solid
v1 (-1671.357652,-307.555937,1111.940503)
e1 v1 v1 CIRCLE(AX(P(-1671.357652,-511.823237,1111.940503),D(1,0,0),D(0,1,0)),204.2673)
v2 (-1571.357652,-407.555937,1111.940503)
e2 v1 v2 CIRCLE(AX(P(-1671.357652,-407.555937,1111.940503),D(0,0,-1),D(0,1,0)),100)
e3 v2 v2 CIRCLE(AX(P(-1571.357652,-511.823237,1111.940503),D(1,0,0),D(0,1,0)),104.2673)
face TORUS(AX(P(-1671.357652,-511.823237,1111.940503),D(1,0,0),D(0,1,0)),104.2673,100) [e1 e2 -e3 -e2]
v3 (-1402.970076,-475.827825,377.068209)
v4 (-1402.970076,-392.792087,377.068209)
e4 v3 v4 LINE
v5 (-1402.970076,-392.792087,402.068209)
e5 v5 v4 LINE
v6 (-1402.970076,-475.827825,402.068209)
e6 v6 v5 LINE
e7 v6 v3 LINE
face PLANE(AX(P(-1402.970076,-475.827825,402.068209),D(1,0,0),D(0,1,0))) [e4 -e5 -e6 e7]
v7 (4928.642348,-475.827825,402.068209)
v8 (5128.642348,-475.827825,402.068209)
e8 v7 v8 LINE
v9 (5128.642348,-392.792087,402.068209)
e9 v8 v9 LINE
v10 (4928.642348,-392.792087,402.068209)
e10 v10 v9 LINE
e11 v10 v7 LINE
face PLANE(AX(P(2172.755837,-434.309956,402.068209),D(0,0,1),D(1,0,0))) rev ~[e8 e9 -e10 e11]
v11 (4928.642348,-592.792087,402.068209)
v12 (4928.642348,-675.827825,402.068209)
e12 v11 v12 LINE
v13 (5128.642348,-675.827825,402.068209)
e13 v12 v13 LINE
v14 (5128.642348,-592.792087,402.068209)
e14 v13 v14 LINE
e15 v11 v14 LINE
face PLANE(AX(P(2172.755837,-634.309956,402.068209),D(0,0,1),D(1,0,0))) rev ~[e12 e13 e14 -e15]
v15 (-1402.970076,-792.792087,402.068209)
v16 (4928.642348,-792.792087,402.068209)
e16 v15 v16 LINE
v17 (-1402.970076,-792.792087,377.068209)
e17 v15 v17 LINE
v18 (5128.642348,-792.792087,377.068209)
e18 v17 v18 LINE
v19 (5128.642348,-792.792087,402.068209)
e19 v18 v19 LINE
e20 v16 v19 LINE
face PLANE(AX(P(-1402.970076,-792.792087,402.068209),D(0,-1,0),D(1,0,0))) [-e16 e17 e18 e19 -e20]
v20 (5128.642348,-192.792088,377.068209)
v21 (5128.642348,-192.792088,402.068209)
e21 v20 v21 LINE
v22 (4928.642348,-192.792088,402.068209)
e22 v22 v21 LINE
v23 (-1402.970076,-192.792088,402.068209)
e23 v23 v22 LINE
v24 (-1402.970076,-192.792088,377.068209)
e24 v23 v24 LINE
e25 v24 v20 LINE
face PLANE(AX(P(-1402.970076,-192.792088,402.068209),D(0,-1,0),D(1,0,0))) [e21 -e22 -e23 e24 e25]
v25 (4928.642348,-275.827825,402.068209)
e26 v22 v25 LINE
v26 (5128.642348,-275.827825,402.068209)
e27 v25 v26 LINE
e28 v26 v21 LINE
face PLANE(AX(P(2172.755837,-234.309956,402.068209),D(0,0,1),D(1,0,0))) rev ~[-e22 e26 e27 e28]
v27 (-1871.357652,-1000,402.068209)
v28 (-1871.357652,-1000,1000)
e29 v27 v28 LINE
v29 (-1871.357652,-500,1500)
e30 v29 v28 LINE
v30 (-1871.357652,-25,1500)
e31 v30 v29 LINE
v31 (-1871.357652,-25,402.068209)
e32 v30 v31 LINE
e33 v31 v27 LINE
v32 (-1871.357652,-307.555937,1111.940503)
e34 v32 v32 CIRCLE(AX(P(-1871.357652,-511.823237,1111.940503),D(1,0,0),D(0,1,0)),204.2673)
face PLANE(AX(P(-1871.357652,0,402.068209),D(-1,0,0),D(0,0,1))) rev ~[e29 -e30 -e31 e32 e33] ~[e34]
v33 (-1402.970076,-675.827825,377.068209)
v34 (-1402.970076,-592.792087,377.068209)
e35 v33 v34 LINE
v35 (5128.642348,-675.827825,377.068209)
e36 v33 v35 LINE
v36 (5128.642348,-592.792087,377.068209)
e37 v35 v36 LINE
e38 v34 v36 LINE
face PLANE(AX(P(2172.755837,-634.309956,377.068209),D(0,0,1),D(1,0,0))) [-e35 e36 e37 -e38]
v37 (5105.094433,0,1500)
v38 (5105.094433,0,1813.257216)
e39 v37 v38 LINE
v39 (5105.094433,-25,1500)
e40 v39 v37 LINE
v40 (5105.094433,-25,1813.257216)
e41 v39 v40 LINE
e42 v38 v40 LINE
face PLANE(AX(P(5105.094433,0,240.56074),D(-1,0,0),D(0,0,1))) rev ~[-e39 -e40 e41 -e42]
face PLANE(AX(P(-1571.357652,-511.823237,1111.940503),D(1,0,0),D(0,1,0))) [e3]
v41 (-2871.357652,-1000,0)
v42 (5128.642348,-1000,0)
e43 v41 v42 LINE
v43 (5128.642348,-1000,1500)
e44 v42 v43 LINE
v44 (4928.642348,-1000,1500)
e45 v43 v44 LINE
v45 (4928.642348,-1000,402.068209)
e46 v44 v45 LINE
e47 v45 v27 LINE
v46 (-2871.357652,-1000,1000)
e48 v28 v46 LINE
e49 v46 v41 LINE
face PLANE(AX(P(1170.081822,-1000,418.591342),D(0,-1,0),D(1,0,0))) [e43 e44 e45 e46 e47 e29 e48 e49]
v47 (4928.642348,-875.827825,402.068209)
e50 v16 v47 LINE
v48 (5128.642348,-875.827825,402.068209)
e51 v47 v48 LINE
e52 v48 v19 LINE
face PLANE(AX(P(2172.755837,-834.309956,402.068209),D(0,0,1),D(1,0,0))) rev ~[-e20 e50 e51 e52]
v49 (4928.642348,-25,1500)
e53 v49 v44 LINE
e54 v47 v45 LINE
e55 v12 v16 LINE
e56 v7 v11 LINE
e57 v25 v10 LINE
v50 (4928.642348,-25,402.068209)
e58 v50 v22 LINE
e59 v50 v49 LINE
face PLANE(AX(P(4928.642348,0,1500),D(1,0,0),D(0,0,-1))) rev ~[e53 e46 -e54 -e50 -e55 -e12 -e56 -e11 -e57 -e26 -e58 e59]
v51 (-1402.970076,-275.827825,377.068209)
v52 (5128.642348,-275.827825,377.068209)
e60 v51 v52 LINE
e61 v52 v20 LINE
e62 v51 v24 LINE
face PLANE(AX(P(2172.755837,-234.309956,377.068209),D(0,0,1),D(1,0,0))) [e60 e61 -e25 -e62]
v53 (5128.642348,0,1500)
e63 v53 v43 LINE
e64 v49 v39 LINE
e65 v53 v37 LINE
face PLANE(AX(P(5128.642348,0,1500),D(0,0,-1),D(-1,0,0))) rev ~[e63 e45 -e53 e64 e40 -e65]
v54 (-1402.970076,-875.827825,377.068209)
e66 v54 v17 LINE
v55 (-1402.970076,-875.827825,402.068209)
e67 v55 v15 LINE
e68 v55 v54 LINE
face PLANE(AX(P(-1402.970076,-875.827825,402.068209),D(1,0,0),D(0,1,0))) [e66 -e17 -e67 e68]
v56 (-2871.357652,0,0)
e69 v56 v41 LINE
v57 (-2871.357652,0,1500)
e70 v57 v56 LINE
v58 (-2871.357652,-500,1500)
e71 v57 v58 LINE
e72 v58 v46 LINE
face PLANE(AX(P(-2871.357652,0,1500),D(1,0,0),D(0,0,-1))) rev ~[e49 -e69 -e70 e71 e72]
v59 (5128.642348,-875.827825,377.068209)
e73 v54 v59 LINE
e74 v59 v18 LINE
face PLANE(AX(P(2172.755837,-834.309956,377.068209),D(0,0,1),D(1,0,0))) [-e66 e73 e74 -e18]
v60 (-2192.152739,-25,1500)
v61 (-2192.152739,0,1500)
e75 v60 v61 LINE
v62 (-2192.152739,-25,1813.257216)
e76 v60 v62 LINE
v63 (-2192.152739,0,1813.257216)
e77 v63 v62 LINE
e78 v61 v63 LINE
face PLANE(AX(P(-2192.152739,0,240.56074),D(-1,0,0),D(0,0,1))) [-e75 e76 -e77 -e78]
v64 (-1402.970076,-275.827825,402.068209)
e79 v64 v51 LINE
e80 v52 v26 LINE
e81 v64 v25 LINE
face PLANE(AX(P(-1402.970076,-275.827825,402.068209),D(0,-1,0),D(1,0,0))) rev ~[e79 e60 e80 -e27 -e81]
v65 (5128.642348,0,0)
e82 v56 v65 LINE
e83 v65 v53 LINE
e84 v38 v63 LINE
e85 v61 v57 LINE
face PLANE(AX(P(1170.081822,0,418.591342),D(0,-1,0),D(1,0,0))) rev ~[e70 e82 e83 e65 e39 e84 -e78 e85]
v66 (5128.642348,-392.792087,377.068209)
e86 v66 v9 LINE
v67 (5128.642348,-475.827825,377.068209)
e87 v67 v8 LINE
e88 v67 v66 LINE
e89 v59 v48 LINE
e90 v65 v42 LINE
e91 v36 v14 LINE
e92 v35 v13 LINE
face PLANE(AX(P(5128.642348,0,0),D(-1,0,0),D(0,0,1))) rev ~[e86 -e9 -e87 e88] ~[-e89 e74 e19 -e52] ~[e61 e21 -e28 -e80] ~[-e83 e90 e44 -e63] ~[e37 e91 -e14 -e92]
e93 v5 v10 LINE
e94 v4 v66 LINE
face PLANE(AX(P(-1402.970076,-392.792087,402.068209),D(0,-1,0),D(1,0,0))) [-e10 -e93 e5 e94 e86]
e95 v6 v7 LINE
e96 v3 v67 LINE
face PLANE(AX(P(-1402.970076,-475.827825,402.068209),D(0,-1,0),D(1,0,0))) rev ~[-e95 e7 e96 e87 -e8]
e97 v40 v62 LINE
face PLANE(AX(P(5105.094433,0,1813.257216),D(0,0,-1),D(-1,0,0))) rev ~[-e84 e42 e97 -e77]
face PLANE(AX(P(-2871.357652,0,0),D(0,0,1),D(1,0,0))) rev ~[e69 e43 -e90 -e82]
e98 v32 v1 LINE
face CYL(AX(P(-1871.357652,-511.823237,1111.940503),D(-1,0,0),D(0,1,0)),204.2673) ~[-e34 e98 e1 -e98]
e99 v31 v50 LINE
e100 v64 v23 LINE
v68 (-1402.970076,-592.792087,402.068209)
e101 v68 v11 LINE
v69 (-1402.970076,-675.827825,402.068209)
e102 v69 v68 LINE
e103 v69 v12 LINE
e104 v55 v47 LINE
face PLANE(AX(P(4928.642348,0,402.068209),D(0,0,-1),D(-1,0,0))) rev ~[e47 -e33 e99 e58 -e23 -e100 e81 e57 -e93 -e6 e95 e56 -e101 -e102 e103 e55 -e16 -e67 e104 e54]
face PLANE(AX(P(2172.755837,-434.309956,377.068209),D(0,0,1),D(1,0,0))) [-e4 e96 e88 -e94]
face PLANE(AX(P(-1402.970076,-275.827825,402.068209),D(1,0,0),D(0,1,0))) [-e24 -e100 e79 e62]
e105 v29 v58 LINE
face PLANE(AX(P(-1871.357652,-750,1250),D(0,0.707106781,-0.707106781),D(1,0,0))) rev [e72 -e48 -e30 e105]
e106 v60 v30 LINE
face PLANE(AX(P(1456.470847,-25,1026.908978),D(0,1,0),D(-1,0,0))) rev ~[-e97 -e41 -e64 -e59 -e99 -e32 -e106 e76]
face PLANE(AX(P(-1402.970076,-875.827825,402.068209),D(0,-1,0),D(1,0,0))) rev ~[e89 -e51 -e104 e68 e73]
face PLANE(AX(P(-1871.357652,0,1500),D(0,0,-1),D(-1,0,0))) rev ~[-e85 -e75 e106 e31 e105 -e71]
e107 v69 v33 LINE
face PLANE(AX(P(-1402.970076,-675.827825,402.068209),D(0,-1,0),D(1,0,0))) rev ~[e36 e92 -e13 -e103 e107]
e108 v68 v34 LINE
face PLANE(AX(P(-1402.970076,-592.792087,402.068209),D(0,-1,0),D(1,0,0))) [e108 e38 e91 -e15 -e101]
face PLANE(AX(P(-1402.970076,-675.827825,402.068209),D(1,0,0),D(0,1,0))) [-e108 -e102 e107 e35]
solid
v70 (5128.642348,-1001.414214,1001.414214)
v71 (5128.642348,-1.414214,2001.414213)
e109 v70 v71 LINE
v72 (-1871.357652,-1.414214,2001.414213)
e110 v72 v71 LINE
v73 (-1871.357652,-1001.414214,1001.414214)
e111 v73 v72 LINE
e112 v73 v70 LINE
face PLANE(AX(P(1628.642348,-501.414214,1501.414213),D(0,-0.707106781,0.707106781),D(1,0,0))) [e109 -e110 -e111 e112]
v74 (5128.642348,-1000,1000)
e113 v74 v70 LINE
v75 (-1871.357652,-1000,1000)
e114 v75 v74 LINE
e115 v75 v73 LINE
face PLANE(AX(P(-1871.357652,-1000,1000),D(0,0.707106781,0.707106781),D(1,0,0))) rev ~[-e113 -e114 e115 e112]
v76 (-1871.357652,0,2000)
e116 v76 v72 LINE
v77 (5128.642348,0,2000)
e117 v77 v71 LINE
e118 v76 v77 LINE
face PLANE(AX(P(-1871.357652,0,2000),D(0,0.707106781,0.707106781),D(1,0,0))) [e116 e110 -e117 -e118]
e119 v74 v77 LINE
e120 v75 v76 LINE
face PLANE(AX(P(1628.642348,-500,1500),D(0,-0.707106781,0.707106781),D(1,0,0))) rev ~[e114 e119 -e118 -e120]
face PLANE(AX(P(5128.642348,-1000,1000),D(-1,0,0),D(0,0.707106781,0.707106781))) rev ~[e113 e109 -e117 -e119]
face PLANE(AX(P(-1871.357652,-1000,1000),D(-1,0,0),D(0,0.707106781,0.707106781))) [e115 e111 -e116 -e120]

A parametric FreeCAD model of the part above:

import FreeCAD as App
import Part
import Sketcher

V = App.Vector


def edges_at(feature, points):
    """Names of the edges that pass closest to the given points."""
    edges = feature.Shape.Edges
    near = lambda p: min(range(len(edges)), key=lambda i: edges[i].distToShape(Part.Vertex(*p))[0])
    return sorted({f"Edge{near(p) + 1}" for p in points})


def add_polygon(sketch, points):
    """Adds a closed chain of lines whose ends are joined by coincident constraints."""
    first, n = sketch.GeometryCount, len(points)
    for a, b in zip(points, points[1:] + points[:1]):
        sketch.addGeometry(Part.LineSegment(App.Vector(*a, 0), App.Vector(*b, 0)), False)
    for i in range(n):
        sketch.addConstraint(Sketcher.Constraint("Coincident", first + i, 2, first + (i + 1) % n, 1))

doc = App.newDocument("Part")
params = doc.addObject("Spreadsheet::Sheet", "Params")
for row, (alias, value) in enumerate([
    ("sketch1_width", "1000 mm"),
    ("sketch1_width2", "8000 mm"),
    ("sketch1_width3", "200 mm"),
    ("sketch1_height", "1500 mm"),
    ("pad1_length", "1000 mm"),
    ("pad2_length", "25 mm"),
    ("pad3_length", "300 mm"),
    ("chamfer_size", "500 mm"),
    ("fillet_radius", "100 mm"),
    ("pocket1_length", "25 mm"),
    ("sketch5_width", "7000 mm"),
    ("pad4_length", "2 mm"),
], start=1):
    params.set(f"A{row}", alias)
    params.set(f"B{row}", "=" + value)
    params.setAlias(f"B{row}", alias)

body = doc.addObject("PartDesign::Body", "Body")

# Sketch on XZ plane
sketch1 = body.newObject("Sketcher::SketchObject", "Sketch")
sketch1.AttachmentSupport = (doc.getObject("XZ_Plane"), [""])
sketch1.MapMode = "FlatFace"
add_polygon(sketch1, [(-1871, 1500), (-2871, 1500), (-2871, 0), (5129, 0), (5129, 1500), (4929, 1500), (4929, 402), (-1871, 402)])  # lines 0-7
sketch1.addConstraint([
    Sketcher.Constraint("Horizontal", 0),
    Sketcher.Constraint("Vertical", 1),
    Sketcher.Constraint("Horizontal", 2),
    Sketcher.Constraint("Vertical", 3),
    Sketcher.Constraint("Horizontal", 4),
    Sketcher.Constraint("Vertical", 5),
    Sketcher.Constraint("Horizontal", 6),
    Sketcher.Constraint("Vertical", 7),
    Sketcher.Constraint("PointOnObject", 1, 2, -1),
    Sketcher.Constraint("Horizontal", 0, 2, 3, 2),
    Sketcher.Constraint("DistanceX", 0, 2, 0, 1, 1000.0),
    Sketcher.Constraint("DistanceX", 2, 1, 2, 2, 8000.0),
    Sketcher.Constraint("DistanceX", 4, 2, 4, 1, 200.0),
    Sketcher.Constraint("DistanceY", 1, 2, 1, 1, 1500.0),
    Sketcher.Constraint("DistanceY", 5, 2, 5, 1, 1097.931791),
    Sketcher.Constraint("DistanceX", -1, 1, 2, 2, 5128.642348),
])
sketch1.setExpression("Constraints[18]", "Params.sketch1_width")
sketch1.setExpression("Constraints[19]", "Params.sketch1_width2")
sketch1.setExpression("Constraints[20]", "Params.sketch1_width3")
sketch1.setExpression("Constraints[21]", "Params.sketch1_height")
pad1 = body.newObject("PartDesign::Pad", "Pad")
pad1.Profile = sketch1
pad1.setExpression("Length", "Params.pad1_length")

# Sketch on XZ plane
sketch2 = body.newObject("Sketcher::SketchObject", "Sketch001")
sketch2.AttachmentSupport = (doc.getObject("XZ_Plane"), [""])
sketch2.MapMode = "FlatFace"
add_polygon(sketch2, [(5105, 1813), (5105, 241), (-2192, 241), (-2192, 1813)])  # lines 0-3
sketch2.addConstraint([
    Sketcher.Constraint("Vertical", 0),
    Sketcher.Constraint("Horizontal", 1),
    Sketcher.Constraint("Vertical", 2),
    Sketcher.Constraint("Horizontal", 3),
    Sketcher.Constraint("DistanceX", 1, 2, 1, 1, 7297.247172),
    Sketcher.Constraint("DistanceY", 0, 2, 0, 1, 1572.696477),
    Sketcher.Constraint("DistanceY", -1, 1, 0, 2, 240.56074),
    Sketcher.Constraint("DistanceX", 1, 2, -1, 1, 2192.152739),
])
pad2 = body.newObject("PartDesign::Pad", "Pad001")
pad2.Profile = sketch2
pad2.setExpression("Length", "Params.pad2_length")

# Sketch on YZ plane
sketch3 = body.newObject("Sketcher::SketchObject", "Sketch002")
sketch3.AttachmentSupport = (doc.getObject("YZ_Plane"), [""])
sketch3.MapMode = "FlatFace"
sketch3.AttachmentOffset = App.Placement(V(0, 0, -1871.357652), App.Rotation())
sketch3.addGeometry(Part.Circle(V(-512, 1112, 0), V(0, 0, 1), 204), False)
sketch3.addConstraint([
    Sketcher.Constraint("Diameter", 0, 408.5346),
    Sketcher.Constraint("DistanceX", 0, 3, -1, 1, 511.823237),
    Sketcher.Constraint("DistanceY", -1, 1, 0, 3, 1111.940503),
])
pad3 = body.newObject("PartDesign::Pad", "Pad002")
pad3.Profile = sketch3
pad3.setExpression("Length", "Params.pad3_length")
doc.recompute()

chamfer = body.newObject("PartDesign::Chamfer", "Chamfer")
chamfer.Base = (pad3, edges_at(pad3, [(-2371.358, -1000, 1500)]))
chamfer.setExpression("Size", "Params.chamfer_size")
doc.recompute()

fillet = body.newObject("PartDesign::Fillet", "Fillet")
fillet.Base = (chamfer, edges_at(chamfer, [(-1571.358, -716.091, 1111.941)]))
fillet.setExpression("Radius", "Params.fillet_radius")

# Sketch on XY plane
sketch4 = body.newObject("Sketcher::SketchObject", "Sketch003")
sketch4.AttachmentSupport = (doc.getObject("XY_Plane"), [""])
sketch4.MapMode = "FlatFace"
sketch4.AttachmentOffset = App.Placement(V(0, 0, 402.068209), App.Rotation())
add_polygon(sketch4, [(-1403, -193), (-1403, -276), (5748, -276), (5748, -193)])  # lines 0-3
add_polygon(sketch4, [(-1403, -393), (-1403, -476), (5748, -476), (5748, -393)])  # lines 4-7
add_polygon(sketch4, [(-1403, -593), (-1403, -676), (5748, -676), (5748, -593)])  # lines 8-11
add_polygon(sketch4, [(-1403, -793), (-1403, -876), (5748, -876), (5748, -793)])  # lines 12-15
sketch4.addConstraint([
    Sketcher.Constraint("Vertical", 0),
    Sketcher.Constraint("Horizontal", 1),
    Sketcher.Constraint("Vertical", 2),
    Sketcher.Constraint("Horizontal", 3),
    Sketcher.Constraint("Vertical", 4),
    Sketcher.Constraint("Horizontal", 5),
    Sketcher.Constraint("Vertical", 6),
    Sketcher.Constraint("Horizontal", 7),
    Sketcher.Constraint("Vertical", 8),
    Sketcher.Constraint("Horizontal", 9),
    Sketcher.Constraint("Vertical", 10),
    Sketcher.Constraint("Horizontal", 11),
    Sketcher.Constraint("Vertical", 12),
    Sketcher.Constraint("Horizontal", 13),
    Sketcher.Constraint("Vertical", 14),
    Sketcher.Constraint("Horizontal", 15),
    Sketcher.Constraint("Vertical", 3, 2, 4, 2),
    Sketcher.Constraint("Vertical", 2, 2, 5, 2),
    Sketcher.Constraint("Vertical", 7, 2, 8, 2),
    Sketcher.Constraint("Vertical", 6, 2, 9, 2),
    Sketcher.Constraint("Vertical", 11, 2, 12, 2),
    Sketcher.Constraint("Vertical", 10, 2, 13, 2),
    Sketcher.Constraint("Equal", 2, 4),
    Sketcher.Constraint("Equal", 6, 8),
    Sketcher.Constraint("Equal", 10, 12),
    Sketcher.Constraint("DistanceY", 4, 2, 0, 2, 200.0),
    Sketcher.Constraint("DistanceY", 8, 2, 4, 2, 200.0),
    Sketcher.Constraint("DistanceY", 12, 2, 8, 2, 200.0),
    Sketcher.Constraint("DistanceX", 1, 1, 1, 2, 7151.451826),
    Sketcher.Constraint("DistanceY", 0, 2, 0, 1, 83.035737),
    Sketcher.Constraint("DistanceX", -1, 1, 1, 2, 5748.48175),
    Sketcher.Constraint("DistanceY", 0, 2, -1, 1, 275.827825),
])
pocket1 = body.newObject("PartDesign::Pocket", "Pocket")
pocket1.Profile = sketch4
pocket1.setExpression("Length", "Params.pocket1_length")
body2 = doc.addObject("PartDesign::Body", "Body001")

# Sketch on an angled plane
sketch5 = body2.newObject("Sketcher::SketchObject", "Sketch004")
sketch5.Placement = App.Placement(V(0, -1000, 1000), App.Rotation(V(1, 0, 0), V(0, 0.707106781, 0.707106781), V(0, -0.707106781, 0.707106781), "ZXY"))
add_polygon(sketch5, [(-1871, 1414), (-1871, 0), (5129, 0), (5129, 1414)])  # lines 0-3
sketch5.addConstraint([
    Sketcher.Constraint("Vertical", 0),
    Sketcher.Constraint("Horizontal", 1),
    Sketcher.Constraint("Vertical", 2),
    Sketcher.Constraint("Horizontal", 3),
    Sketcher.Constraint("PointOnObject", 0, 2, -1),
    Sketcher.Constraint("DistanceX", 1, 1, 1, 2, 7000.0),
    Sketcher.Constraint("DistanceY", 0, 2, 0, 1, 1414.213561),
    Sketcher.Constraint("DistanceX", 0, 2, -1, 1, 1871.357652),
])
sketch5.setExpression("Constraints[9]", "Params.sketch5_width")
pad4 = body2.newObject("PartDesign::Pad", "Pad003")
pad4.Profile = sketch5
pad4.setExpression("Length", "Params.pad4_length")

doc.recompute()
